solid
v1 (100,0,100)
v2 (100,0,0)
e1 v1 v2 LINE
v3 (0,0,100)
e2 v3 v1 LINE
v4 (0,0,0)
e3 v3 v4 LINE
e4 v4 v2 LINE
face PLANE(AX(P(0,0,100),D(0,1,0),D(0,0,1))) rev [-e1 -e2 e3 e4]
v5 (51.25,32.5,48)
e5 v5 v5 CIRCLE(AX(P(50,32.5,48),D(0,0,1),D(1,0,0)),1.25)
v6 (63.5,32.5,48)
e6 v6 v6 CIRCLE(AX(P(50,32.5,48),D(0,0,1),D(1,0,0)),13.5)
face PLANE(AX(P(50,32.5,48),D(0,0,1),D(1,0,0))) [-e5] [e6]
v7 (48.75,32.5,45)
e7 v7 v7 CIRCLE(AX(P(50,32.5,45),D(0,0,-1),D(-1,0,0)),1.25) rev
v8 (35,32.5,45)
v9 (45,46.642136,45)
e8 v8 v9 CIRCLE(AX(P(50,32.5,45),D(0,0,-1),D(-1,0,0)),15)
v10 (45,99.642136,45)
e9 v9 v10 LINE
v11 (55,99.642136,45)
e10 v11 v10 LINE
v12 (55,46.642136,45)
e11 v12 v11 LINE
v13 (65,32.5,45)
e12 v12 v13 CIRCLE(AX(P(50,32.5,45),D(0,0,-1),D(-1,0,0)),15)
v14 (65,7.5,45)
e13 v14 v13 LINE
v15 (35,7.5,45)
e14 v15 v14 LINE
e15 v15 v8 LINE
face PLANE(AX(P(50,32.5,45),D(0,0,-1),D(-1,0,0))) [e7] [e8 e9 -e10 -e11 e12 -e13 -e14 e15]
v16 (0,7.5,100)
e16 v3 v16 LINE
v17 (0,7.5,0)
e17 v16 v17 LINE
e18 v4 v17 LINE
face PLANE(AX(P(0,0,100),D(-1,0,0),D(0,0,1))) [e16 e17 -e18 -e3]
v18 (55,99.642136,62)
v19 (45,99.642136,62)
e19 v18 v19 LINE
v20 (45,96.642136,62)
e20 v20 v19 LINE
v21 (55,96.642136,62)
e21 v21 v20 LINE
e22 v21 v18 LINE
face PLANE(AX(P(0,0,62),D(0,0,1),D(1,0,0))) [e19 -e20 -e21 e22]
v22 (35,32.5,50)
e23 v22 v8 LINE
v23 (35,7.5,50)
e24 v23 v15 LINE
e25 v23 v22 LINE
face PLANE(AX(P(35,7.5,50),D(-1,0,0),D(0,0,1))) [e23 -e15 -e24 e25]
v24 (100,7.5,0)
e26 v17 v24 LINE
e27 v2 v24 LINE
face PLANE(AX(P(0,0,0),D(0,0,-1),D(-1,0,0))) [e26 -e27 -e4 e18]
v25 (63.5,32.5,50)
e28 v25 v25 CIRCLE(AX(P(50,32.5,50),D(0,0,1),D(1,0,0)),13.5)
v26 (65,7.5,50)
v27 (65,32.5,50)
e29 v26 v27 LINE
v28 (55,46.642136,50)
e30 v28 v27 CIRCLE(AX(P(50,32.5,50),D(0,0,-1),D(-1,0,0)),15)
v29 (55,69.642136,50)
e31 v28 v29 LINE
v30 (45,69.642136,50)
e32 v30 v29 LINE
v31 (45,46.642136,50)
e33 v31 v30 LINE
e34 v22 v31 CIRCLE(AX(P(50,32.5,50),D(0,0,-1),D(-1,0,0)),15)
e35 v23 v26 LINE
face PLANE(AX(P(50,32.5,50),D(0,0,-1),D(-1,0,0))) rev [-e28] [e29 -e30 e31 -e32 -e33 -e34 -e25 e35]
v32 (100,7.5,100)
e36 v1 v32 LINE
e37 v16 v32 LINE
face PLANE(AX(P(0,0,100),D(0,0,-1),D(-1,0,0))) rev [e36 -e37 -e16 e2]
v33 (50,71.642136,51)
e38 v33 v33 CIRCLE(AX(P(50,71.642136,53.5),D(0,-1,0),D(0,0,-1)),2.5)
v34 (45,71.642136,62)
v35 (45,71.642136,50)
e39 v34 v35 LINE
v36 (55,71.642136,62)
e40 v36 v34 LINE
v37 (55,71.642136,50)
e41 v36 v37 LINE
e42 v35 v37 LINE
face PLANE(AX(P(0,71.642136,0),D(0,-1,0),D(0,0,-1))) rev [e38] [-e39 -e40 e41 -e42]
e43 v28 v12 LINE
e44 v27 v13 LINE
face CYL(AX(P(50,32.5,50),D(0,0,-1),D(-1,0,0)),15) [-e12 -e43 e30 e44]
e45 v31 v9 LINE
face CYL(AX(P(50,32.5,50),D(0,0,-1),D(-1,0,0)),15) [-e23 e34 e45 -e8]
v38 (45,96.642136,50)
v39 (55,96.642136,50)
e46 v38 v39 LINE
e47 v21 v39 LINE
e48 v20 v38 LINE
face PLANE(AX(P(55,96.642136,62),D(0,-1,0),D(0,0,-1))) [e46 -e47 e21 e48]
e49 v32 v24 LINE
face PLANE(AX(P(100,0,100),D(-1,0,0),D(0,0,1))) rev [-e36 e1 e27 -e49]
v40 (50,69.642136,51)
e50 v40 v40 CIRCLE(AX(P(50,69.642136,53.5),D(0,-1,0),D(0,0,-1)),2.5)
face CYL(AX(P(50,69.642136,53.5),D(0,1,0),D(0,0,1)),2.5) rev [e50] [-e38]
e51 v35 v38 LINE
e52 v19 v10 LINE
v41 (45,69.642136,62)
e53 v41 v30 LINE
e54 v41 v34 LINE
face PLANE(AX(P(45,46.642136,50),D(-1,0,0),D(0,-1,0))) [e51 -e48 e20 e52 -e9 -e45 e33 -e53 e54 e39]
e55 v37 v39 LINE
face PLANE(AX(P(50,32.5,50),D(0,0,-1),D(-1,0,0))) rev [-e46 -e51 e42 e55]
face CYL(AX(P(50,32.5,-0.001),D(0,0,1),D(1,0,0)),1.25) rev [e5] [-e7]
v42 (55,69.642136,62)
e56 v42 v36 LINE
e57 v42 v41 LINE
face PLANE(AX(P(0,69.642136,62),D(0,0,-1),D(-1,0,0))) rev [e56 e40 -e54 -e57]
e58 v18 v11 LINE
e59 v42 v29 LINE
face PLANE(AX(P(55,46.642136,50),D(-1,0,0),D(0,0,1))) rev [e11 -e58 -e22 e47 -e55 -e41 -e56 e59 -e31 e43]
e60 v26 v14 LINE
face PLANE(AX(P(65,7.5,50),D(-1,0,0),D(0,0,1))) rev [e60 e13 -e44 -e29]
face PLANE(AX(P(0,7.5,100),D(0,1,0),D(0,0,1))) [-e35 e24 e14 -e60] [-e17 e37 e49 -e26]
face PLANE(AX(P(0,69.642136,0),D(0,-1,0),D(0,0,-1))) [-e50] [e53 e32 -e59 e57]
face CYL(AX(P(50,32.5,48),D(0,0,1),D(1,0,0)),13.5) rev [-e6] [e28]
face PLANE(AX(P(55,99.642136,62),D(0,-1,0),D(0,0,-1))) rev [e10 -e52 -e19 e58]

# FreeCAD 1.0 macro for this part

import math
import FreeCAD as App
import Part
import Sketcher

doc = App.newDocument("Part")
params = doc.addObject("Spreadsheet::Sheet", "Params")
for row, (alias, value) in enumerate([
    ("sketch1_width", "100 mm"),
    ("sketch1_height", "7.5 mm"),
    ("pad1_length", "100 mm"),
    ("sketch2_radius", "15 mm"),
    ("sketch2_width", "10 mm"),
    ("sketch2_height", "25 mm"),
    ("sketch2_height2", "50 mm"),
    ("pad2_length", "5 mm"),
    ("sketch3_diameter", "27 mm"),
    ("pocket1_length", "2 mm"),
    ("sketch4_width", "10 mm"),
    ("sketch4_height", "3 mm"),
    ("pad3_length", "17 mm"),
    ("sketch5_diameter", "5 mm"),
    ("sketch5_width", "10 mm"),
    ("sketch5_height", "12 mm"),
    ("pad4_length", "2 mm"),
    ("sketch6_diameter", "2.5 mm"),
], start=1):
    params.set(f"A{row}", alias)
    params.set(f"B{row}", "=" + value)
    params.setAlias(f"B{row}", alias)

body = doc.addObject("PartDesign::Body", "Body")

sketch1 = body.newObject("Sketcher::SketchObject", "Sketch")
sketch1.AttachmentSupport = (doc.getObject("XY_Plane"), [""])
sketch1.MapMode = "FlatFace"
sketch1.addGeometry([
    Part.LineSegment(App.Vector(0, 8, 0), App.Vector(0, 0, 0)),
    Part.LineSegment(App.Vector(0, 0, 0), App.Vector(100, 0, 0)),
    Part.LineSegment(App.Vector(100, 0, 0), App.Vector(100, 8, 0)),
    Part.LineSegment(App.Vector(100, 8, 0), App.Vector(0, 8, 0)),
], False)
sketch1.addConstraint([
    Sketcher.Constraint("Coincident", 0, 2, 1, 1),
    Sketcher.Constraint("Coincident", 1, 2, 2, 1),
    Sketcher.Constraint("Coincident", 2, 2, 3, 1),
    Sketcher.Constraint("Coincident", 3, 2, 0, 1),
    Sketcher.Constraint("Vertical", 0),
    Sketcher.Constraint("Horizontal", 1),
    Sketcher.Constraint("Vertical", 2),
    Sketcher.Constraint("Horizontal", 3),
    Sketcher.Constraint("Coincident", 0, 2, -1, 1),
    Sketcher.Constraint("DistanceX", 1, 1, 1, 2, 100.0),
    Sketcher.Constraint("DistanceY", 0, 2, 0, 1, 7.5),
])
sketch1.setExpression("Constraints[9]", "Params.sketch1_width")
sketch1.setExpression("Constraints[10]", "Params.sketch1_height")
pad1 = body.newObject("PartDesign::Pad", "Pad")
pad1.Profile = sketch1
pad1.setExpression("Length", "Params.pad1_length")

sketch2 = body.newObject("Sketcher::SketchObject", "Sketch001")
sketch2.AttachmentSupport = (doc.getObject("XY_Plane"), [""])
sketch2.MapMode = "FlatFace"
sketch2.AttachmentOffset = App.Placement(App.Vector(0, 0, 45), App.Rotation())
sketch2.addGeometry([
    Part.LineSegment(App.Vector(35, 8, 0), App.Vector(65, 8, 0)),
    Part.LineSegment(App.Vector(65, 8, 0), App.Vector(65, 32, 0)),
    Part.ArcOfCircle(Part.Circle(App.Vector(50, 32, 0), App.Vector(0, 0, 1), 15), math.radians(0), math.radians(71)),
    Part.LineSegment(App.Vector(55, 47, 0), App.Vector(55, 97, 0)),
    Part.LineSegment(App.Vector(55, 97, 0), App.Vector(45, 97, 0)),
    Part.LineSegment(App.Vector(45, 97, 0), App.Vector(45, 47, 0)),
    Part.ArcOfCircle(Part.Circle(App.Vector(50, 32, 0), App.Vector(0, 0, 1), 15), math.radians(109), math.radians(180)),
    Part.LineSegment(App.Vector(35, 32, 0), App.Vector(35, 8, 0)),
], False)
sketch2.addConstraint([
    Sketcher.Constraint("Coincident", 0, 2, 1, 1),
    Sketcher.Constraint("Tangent", 1, 2, 2, 1),
    Sketcher.Constraint("Coincident", 2, 2, 3, 1),
    Sketcher.Constraint("Coincident", 3, 2, 4, 1),
    Sketcher.Constraint("Coincident", 4, 2, 5, 1),
    Sketcher.Constraint("Coincident", 5, 2, 6, 1),
    Sketcher.Constraint("Tangent", 6, 2, 7, 1),
    Sketcher.Constraint("Coincident", 7, 2, 0, 1),
    Sketcher.Constraint("Horizontal", 0),
    Sketcher.Constraint("Vertical", 1),
    Sketcher.Constraint("Vertical", 3),
    Sketcher.Constraint("Horizontal", 4),
    Sketcher.Constraint("Vertical", 5),
    Sketcher.Constraint("Vertical", 7),
    Sketcher.Constraint("Coincident", 6, 3, 2, 3),
    Sketcher.Constraint("Equal", 2, 6),
    Sketcher.Constraint("Horizontal", 2, 2, 5, 2),
    Sketcher.Constraint("Radius", 2, 15.0),
    Sketcher.Constraint("DistanceX", 4, 2, 4, 1, 10.0),
    Sketcher.Constraint("DistanceY", 1, 1, 1, 2, 25.0),
    Sketcher.Constraint("DistanceY", 3, 1, 3, 2, 50.0),
    Sketcher.Constraint("DistanceX", -1, 1, 2, 3, 50.0),
    Sketcher.Constraint("DistanceY", -1, 1, 2, 3, 32.5),
])
sketch2.setExpression("Constraints[17]", "Params.sketch2_radius")
sketch2.setExpression("Constraints[18]", "Params.sketch2_width")
sketch2.setExpression("Constraints[19]", "Params.sketch2_height")
sketch2.setExpression("Constraints[20]", "Params.sketch2_height2")
pad2 = body.newObject("PartDesign::Pad", "Pad001")
pad2.Profile = sketch2
pad2.setExpression("Length", "Params.pad2_length")

sketch3 = body.newObject("Sketcher::SketchObject", "Sketch002")
sketch3.AttachmentSupport = (doc.getObject("XY_Plane"), [""])
sketch3.MapMode = "FlatFace"
sketch3.AttachmentOffset = App.Placement(App.Vector(0, 0, 50), App.Rotation())
sketch3.addGeometry(Part.Circle(App.Vector(50, 32, 0), App.Vector(0, 0, 1), 14), False)
sketch3.addConstraint([
    Sketcher.Constraint("Diameter", 0, 27.0),
    Sketcher.Constraint("DistanceX", -1, 1, 0, 3, 50.0),
    Sketcher.Constraint("DistanceY", -1, 1, 0, 3, 32.5),
])
sketch3.setExpression("Constraints[0]", "Params.sketch3_diameter")
pocket1 = body.newObject("PartDesign::Pocket", "Pocket")
pocket1.Profile = sketch3
pocket1.setExpression("Length", "Params.pocket1_length")

sketch4 = body.newObject("Sketcher::SketchObject", "Sketch003")
sketch4.AttachmentSupport = (doc.getObject("XY_Plane"), [""])
sketch4.MapMode = "FlatFace"
sketch4.AttachmentOffset = App.Placement(App.Vector(0, 0, 45), App.Rotation())
sketch4.addGeometry([
    Part.LineSegment(App.Vector(55, 99.6, 0), App.Vector(55, 96.6, 0)),
    Part.LineSegment(App.Vector(55, 96.6, 0), App.Vector(45, 96.6, 0)),
    Part.LineSegment(App.Vector(45, 96.6, 0), App.Vector(45, 99.6, 0)),
    Part.LineSegment(App.Vector(45, 99.6, 0), App.Vector(55, 99.6, 0)),
], False)
sketch4.addConstraint([
    Sketcher.Constraint("Coincident", 0, 2, 1, 1),
    Sketcher.Constraint("Coincident", 1, 2, 2, 1),
    Sketcher.Constraint("Coincident", 2, 2, 3, 1),
    Sketcher.Constraint("Coincident", 3, 2, 0, 1),
    Sketcher.Constraint("Vertical", 0),
    Sketcher.Constraint("Horizontal", 1),
    Sketcher.Constraint("Vertical", 2),
    Sketcher.Constraint("Horizontal", 3),
    Sketcher.Constraint("DistanceX", 1, 2, 1, 1, 10.0),
    Sketcher.Constraint("DistanceY", 0, 2, 0, 1, 3.0),
    Sketcher.Constraint("DistanceX", -1, 1, 0, 2, 55.0),
    Sketcher.Constraint("DistanceY", -1, 1, 0, 2, 96.642136),
])
sketch4.setExpression("Constraints[8]", "Params.sketch4_width")
sketch4.setExpression("Constraints[9]", "Params.sketch4_height")
pad3 = body.newObject("PartDesign::Pad", "Pad002")
pad3.Profile = sketch4
pad3.setExpression("Length", "Params.pad3_length")

sketch5 = body.newObject("Sketcher::SketchObject", "Sketch004")
sketch5.AttachmentSupport = (doc.getObject("XZ_Plane"), [""])
sketch5.MapMode = "FlatFace"
sketch5.AttachmentOffset = App.Placement(App.Vector(0, 0, -71.642136), App.Rotation())
sketch5.addGeometry([
    Part.LineSegment(App.Vector(55, 50, 0), App.Vector(55, 62, 0)),
    Part.LineSegment(App.Vector(55, 62, 0), App.Vector(45, 62, 0)),
    Part.LineSegment(App.Vector(45, 62, 0), App.Vector(45, 50, 0)),
    Part.LineSegment(App.Vector(45, 50, 0), App.Vector(55, 50, 0)),
    Part.Circle(App.Vector(50, 53.5, 0), App.Vector(0, 0, 1), 2.5),
], False)
sketch5.addConstraint([
    Sketcher.Constraint("Coincident", 0, 2, 1, 1),
    Sketcher.Constraint("Coincident", 1, 2, 2, 1),
    Sketcher.Constraint("Coincident", 2, 2, 3, 1),
    Sketcher.Constraint("Coincident", 3, 2, 0, 1),
    Sketcher.Constraint("Vertical", 0),
    Sketcher.Constraint("Horizontal", 1),
    Sketcher.Constraint("Vertical", 2),
    Sketcher.Constraint("Horizontal", 3),
    Sketcher.Constraint("Diameter", 4, 5.0),
    Sketcher.Constraint("DistanceX", 1, 2, 1, 1, 10.0),
    Sketcher.Constraint("DistanceY", 0, 1, 0, 2, 12.0),
    Sketcher.Constraint("DistanceX", -1, 1, 4, 3, 50.0),
    Sketcher.Constraint("DistanceX", -1, 1, 0, 2, 55.0),
    Sketcher.Constraint("DistanceY", -1, 1, 0, 2, 62.0),
    Sketcher.Constraint("DistanceY", -1, 1, 4, 3, 53.5),
])
sketch5.setExpression("Constraints[8]", "Params.sketch5_diameter")
sketch5.setExpression("Constraints[9]", "Params.sketch5_width")
sketch5.setExpression("Constraints[10]", "Params.sketch5_height")
pad4 = body.newObject("PartDesign::Pad", "Pad003")
pad4.Profile = sketch5
pad4.setExpression("Length", "Params.pad4_length")

sketch6 = body.newObject("Sketcher::SketchObject", "Sketch005")
sketch6.AttachmentSupport = (doc.getObject("XY_Plane"), [""])
sketch6.MapMode = "FlatFace"
sketch6.AttachmentOffset = App.Placement(App.Vector(0, 0, 48), App.Rotation())
sketch6.addGeometry(Part.Circle(App.Vector(50, 32.5, 0), App.Vector(0, 0, 1), 1.2), False)
sketch6.addConstraint([
    Sketcher.Constraint("Diameter", 0, 2.5),
    Sketcher.Constraint("DistanceX", -1, 1, 0, 3, 50.0),
    Sketcher.Constraint("DistanceY", -1, 1, 0, 3, 32.5),
])
sketch6.setExpression("Constraints[0]", "Params.sketch6_diameter")
pocket2 = body.newObject("PartDesign::Pocket", "Pocket001")
pocket2.Profile = sketch6
pocket2.Type = "UpToFirst"

doc.recompute()
